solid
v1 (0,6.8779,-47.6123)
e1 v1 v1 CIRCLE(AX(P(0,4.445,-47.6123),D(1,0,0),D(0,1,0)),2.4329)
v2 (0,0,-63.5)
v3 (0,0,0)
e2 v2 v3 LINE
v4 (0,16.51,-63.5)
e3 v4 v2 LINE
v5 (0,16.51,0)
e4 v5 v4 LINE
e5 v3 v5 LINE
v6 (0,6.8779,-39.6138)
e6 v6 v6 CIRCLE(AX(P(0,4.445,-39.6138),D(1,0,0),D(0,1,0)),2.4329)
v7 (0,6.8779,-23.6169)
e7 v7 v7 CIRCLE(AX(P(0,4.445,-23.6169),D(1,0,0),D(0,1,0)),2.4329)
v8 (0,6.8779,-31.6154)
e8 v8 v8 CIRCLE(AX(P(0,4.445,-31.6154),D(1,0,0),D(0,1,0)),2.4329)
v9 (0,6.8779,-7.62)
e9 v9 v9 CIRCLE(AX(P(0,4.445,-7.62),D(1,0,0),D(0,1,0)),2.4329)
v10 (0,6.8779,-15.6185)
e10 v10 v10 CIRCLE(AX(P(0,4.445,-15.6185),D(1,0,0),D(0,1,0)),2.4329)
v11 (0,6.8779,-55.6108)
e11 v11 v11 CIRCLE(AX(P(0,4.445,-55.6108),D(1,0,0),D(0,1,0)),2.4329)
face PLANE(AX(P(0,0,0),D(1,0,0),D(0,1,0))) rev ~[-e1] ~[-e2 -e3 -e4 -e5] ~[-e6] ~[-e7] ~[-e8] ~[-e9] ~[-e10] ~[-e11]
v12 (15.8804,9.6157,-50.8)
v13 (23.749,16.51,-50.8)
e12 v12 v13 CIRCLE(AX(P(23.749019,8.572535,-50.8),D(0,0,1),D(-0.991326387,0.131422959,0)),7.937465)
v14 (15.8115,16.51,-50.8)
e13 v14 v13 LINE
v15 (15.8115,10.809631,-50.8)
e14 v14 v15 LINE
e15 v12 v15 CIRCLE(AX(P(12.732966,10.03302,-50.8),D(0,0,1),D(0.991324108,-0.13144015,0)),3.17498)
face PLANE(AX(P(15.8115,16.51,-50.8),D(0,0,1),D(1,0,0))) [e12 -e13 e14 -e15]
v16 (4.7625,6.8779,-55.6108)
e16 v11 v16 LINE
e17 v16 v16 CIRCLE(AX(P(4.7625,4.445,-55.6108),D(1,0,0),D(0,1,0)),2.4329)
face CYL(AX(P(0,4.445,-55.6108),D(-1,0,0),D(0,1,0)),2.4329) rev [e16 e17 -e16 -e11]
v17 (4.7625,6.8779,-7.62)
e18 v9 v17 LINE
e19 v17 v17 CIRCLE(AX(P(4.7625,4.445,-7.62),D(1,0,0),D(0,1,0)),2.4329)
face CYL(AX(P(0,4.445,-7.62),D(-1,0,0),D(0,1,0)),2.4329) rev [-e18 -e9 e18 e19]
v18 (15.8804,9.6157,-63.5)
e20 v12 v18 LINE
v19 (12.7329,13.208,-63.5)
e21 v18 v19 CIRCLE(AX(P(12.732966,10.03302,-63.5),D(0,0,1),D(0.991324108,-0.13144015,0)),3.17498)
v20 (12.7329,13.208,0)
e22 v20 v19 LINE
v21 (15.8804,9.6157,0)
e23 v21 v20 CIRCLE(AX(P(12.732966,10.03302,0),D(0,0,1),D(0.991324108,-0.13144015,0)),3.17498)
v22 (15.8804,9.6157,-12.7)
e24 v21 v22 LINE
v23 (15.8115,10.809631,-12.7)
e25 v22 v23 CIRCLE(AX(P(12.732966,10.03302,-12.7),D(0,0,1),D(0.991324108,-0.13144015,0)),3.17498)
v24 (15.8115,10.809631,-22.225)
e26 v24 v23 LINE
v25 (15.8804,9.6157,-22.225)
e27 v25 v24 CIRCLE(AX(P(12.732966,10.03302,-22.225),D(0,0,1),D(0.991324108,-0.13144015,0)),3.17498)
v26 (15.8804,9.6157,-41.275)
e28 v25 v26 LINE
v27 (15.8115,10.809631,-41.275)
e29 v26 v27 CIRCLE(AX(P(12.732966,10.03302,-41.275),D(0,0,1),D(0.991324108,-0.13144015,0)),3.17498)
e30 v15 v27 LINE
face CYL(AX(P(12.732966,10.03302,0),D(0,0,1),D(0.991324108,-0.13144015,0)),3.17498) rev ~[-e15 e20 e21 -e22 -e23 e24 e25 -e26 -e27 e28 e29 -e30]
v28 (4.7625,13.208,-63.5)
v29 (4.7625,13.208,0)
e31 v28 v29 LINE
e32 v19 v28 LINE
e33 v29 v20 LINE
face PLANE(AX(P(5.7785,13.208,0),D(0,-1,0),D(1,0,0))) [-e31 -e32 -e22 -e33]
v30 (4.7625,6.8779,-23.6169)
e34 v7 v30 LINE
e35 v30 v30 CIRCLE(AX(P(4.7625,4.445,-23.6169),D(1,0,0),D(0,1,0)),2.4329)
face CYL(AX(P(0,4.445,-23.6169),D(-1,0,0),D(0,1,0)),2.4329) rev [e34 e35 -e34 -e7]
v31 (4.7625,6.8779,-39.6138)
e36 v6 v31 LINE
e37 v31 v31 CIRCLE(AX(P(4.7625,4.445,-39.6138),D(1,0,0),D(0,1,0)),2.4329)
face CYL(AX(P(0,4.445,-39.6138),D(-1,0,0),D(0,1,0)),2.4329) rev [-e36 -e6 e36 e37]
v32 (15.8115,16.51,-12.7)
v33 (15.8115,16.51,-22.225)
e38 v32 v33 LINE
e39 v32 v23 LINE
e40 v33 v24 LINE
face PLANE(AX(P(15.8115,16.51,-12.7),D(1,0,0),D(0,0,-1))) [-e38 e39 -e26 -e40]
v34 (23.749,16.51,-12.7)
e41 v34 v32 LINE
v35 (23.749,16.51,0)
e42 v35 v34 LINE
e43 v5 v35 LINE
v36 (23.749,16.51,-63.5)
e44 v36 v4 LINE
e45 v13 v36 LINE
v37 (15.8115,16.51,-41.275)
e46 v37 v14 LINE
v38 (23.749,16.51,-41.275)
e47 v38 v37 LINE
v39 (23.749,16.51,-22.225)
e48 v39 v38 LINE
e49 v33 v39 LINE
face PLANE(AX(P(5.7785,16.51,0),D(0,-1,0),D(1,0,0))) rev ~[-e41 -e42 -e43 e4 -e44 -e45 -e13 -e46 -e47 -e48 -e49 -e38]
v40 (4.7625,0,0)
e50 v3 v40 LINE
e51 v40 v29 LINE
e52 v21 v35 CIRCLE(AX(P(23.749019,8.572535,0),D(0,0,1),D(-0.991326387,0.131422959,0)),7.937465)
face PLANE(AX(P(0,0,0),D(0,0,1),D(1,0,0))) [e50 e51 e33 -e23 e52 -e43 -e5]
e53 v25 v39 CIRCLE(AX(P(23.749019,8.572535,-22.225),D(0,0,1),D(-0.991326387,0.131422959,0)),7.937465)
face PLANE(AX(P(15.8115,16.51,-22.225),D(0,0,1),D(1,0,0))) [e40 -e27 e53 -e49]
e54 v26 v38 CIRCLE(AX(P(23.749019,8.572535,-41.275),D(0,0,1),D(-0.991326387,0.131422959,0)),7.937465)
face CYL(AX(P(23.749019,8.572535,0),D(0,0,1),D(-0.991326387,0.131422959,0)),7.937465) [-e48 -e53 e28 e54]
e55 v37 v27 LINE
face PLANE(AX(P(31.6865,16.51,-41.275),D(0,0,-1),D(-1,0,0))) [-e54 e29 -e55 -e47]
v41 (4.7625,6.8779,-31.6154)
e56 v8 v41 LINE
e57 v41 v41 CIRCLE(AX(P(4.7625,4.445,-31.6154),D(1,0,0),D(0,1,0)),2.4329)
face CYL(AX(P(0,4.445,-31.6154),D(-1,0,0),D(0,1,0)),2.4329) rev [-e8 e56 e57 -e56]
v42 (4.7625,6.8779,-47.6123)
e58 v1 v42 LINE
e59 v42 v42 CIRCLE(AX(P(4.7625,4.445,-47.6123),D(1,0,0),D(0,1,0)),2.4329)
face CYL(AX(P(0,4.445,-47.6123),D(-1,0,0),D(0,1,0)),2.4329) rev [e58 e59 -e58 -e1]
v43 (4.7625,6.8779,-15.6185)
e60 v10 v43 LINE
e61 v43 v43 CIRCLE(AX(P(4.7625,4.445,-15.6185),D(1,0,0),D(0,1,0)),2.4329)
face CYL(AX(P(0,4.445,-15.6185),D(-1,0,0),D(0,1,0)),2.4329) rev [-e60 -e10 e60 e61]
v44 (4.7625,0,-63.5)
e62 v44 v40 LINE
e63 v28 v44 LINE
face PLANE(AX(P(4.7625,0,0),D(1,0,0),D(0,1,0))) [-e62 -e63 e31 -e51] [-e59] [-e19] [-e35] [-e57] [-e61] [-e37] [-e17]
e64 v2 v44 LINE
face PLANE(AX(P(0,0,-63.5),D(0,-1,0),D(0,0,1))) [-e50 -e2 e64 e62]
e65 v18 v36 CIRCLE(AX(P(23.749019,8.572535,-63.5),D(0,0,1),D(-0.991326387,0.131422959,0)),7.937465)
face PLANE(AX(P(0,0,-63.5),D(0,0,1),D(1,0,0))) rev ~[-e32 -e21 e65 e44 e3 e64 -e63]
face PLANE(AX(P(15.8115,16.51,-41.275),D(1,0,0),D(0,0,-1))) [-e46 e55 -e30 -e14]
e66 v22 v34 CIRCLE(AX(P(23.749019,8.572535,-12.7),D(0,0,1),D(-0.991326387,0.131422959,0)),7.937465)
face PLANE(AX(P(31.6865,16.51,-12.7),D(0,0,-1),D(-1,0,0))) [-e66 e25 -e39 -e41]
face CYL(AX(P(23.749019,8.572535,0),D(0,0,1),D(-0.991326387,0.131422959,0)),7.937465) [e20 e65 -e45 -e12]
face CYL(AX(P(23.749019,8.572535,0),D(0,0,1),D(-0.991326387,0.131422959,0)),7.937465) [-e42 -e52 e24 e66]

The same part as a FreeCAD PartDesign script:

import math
import FreeCAD as App
import Part
import Sketcher

V = App.Vector
Q = App.Units.Quantity

doc = App.newDocument("Part")
body = doc.addObject("PartDesign::Body", "Body")

# Sketch on YZ plane
sketch1 = body.newObject("Sketcher::SketchObject", "Sketch")
sketch1.AttachmentSupport = (doc.getObject("YZ_Plane"), [""])
sketch1.MapMode = "FlatFace"
sketch1.addGeometry(Part.LineSegment(V(16.51, 0, 0), V(0, 0, 0)), False)
sketch1.addGeometry(Part.LineSegment(V(0, 0, 0), V(0, -63.5, 0)), False)
sketch1.addGeometry(Part.LineSegment(V(0, -63.5, 0), V(16.51, -63.5, 0)), False)
sketch1.addGeometry(Part.LineSegment(V(16.51, -63.5, 0), V(16.51, 0, 0)), False)
sketch1.addGeometry(Part.Circle(V(4.445, -55.6108, 0), V(0, 0, 1), 2.4329), False)
sketch1.addGeometry(Part.Circle(V(4.445, -47.6123, 0), V(0, 0, 1), 2.4329), False)
sketch1.addGeometry(Part.Circle(V(4.445, -39.6138, 0), V(0, 0, 1), 2.4329), False)
sketch1.addGeometry(Part.Circle(V(4.445, -31.6154, 0), V(0, 0, 1), 2.4329), False)
sketch1.addGeometry(Part.Circle(V(4.445, -23.6169, 0), V(0, 0, 1), 2.4329), False)
sketch1.addGeometry(Part.Circle(V(4.445, -15.6185, 0), V(0, 0, 1), 2.4329), False)
sketch1.addGeometry(Part.Circle(V(4.445, -7.62, 0), V(0, 0, 1), 2.4329), False)
sketch1.addConstraint(Sketcher.Constraint("Coincident", 0, 2, 1, 1))
sketch1.addConstraint(Sketcher.Constraint("Coincident", 1, 2, 2, 1))
sketch1.addConstraint(Sketcher.Constraint("Coincident", 2, 2, 3, 1))
sketch1.addConstraint(Sketcher.Constraint("Coincident", 3, 2, 0, 1))
sketch1.addConstraint(Sketcher.Constraint("Horizontal", 0))
sketch1.addConstraint(Sketcher.Constraint("Vertical", 1))
sketch1.addConstraint(Sketcher.Constraint("Horizontal", 2))
sketch1.addConstraint(Sketcher.Constraint("Vertical", 3))
sketch1.addConstraint(Sketcher.Constraint("Coincident", 0, 2, -1, 1))
sketch1.addConstraint(Sketcher.Constraint("Equal", 4, 5))
sketch1.addConstraint(Sketcher.Constraint("Equal", 5, 6))
sketch1.addConstraint(Sketcher.Constraint("Equal", 6, 7))
sketch1.addConstraint(Sketcher.Constraint("Equal", 7, 8))
sketch1.addConstraint(Sketcher.Constraint("Equal", 8, 9))
sketch1.addConstraint(Sketcher.Constraint("Equal", 9, 10))
sketch1.addConstraint(Sketcher.Constraint("Vertical", 4, 3, 5, 3))
sketch1.addConstraint(Sketcher.Constraint("Vertical", 5, 3, 6, 3))
sketch1.addConstraint(Sketcher.Constraint("Vertical", 6, 3, 7, 3))
sketch1.addConstraint(Sketcher.Constraint("Vertical", 7, 3, 8, 3))
sketch1.addConstraint(Sketcher.Constraint("Vertical", 8, 3, 9, 3))
sketch1.addConstraint(Sketcher.Constraint("Vertical", 9, 3, 10, 3))
sketch1.addConstraint(Sketcher.Constraint("DistanceY", 1, 2, 1, 1, Q("2.5 in")))
sketch1.addConstraint(Sketcher.Constraint("DistanceX", 0, 2, 0, 1, Q("0.65 in")))
sketch1.addConstraint(Sketcher.Constraint("DistanceY", 10, 3, -1, 1, Q("0.3 in")))
sketch1.addConstraint(Sketcher.Constraint("DistanceY", 4, 3, 5, 3, Q("0.3149 in")))
sketch1.addConstraint(Sketcher.Constraint("DistanceY", 5, 3, 6, 3, Q("0.3149 in")))
sketch1.addConstraint(Sketcher.Constraint("DistanceY", 6, 3, 7, 3, Q("0.3149 in")))
sketch1.addConstraint(Sketcher.Constraint("DistanceY", 7, 3, 8, 3, Q("0.3149 in")))
sketch1.addConstraint(Sketcher.Constraint("DistanceY", 8, 3, 9, 3, Q("0.3149 in")))
sketch1.addConstraint(Sketcher.Constraint("DistanceY", 9, 3, 10, 3, Q("0.3149 in")))
sketch1.addConstraint(Sketcher.Constraint("Diameter", 4, 4.8658))
sketch1.addConstraint(Sketcher.Constraint("DistanceX", -1, 1, 4, 3, Q("0.175 in")))
pad1 = body.newObject("PartDesign::Pad", "Pad")
pad1.Profile = sketch1
pad1.Length = Q("0.1875 in")

# Sketch on YZ plane
sketch2 = body.newObject("Sketcher::SketchObject", "Sketch001")
sketch2.AttachmentSupport = (doc.getObject("YZ_Plane"), [""])
sketch2.MapMode = "FlatFace"
sketch2.AttachmentOffset = App.Placement(V(0, 0, 0.1875 * 25.4), App.Rotation())
sketch2.addGeometry(Part.LineSegment(V(13.208, -63.5, 0), V(16.51, -63.5, 0)), False)
sketch2.addGeometry(Part.LineSegment(V(16.51, -63.5, 0), V(16.51, 0, 0)), False)
sketch2.addGeometry(Part.LineSegment(V(16.51, 0, 0), V(13.208, 0, 0)), False)
sketch2.addGeometry(Part.LineSegment(V(13.208, 0, 0), V(13.208, -63.5, 0)), False)
sketch2.addConstraint(Sketcher.Constraint("Coincident", 0, 2, 1, 1))
sketch2.addConstraint(Sketcher.Constraint("Coincident", 1, 2, 2, 1))
sketch2.addConstraint(Sketcher.Constraint("Coincident", 2, 2, 3, 1))
sketch2.addConstraint(Sketcher.Constraint("Coincident", 3, 2, 0, 1))
sketch2.addConstraint(Sketcher.Constraint("Horizontal", 0))
sketch2.addConstraint(Sketcher.Constraint("Vertical", 1))
sketch2.addConstraint(Sketcher.Constraint("Horizontal", 2))
sketch2.addConstraint(Sketcher.Constraint("Vertical", 3))
sketch2.addConstraint(Sketcher.Constraint("PointOnObject", 1, 2, -1))
sketch2.addConstraint(Sketcher.Constraint("DistanceX", 0, 1, 0, 2, Q("0.13 in")))
sketch2.addConstraint(Sketcher.Constraint("DistanceY", 1, 1, 1, 2, Q("2.5 in")))
sketch2.addConstraint(Sketcher.Constraint("DistanceX", -1, 1, 0, 2, Q("0.65 in")))
pad2 = body.newObject("PartDesign::Pad", "Pad001")
pad2.Profile = sketch2
pad2.Length = Q("0.04 in")

# Sketch on XY plane
sketch3 = body.newObject("Sketcher::SketchObject", "Sketch002")
sketch3.AttachmentSupport = (doc.getObject("XY_Plane"), [""])
sketch3.MapMode = "FlatFace"
sketch3.addGeometry(Part.LineSegment(V(23.749, 16.51, 0), V(5.7785, 16.51, 0)), False)
sketch3.addGeometry(Part.LineSegment(V(5.7785, 16.51, 0), V(5.7785, 13.208, 0)), False)
sketch3.addGeometry(Part.LineSegment(V(5.7785, 13.208, 0), V(12.7329, 13.208, 0)), False)
sketch3.addGeometry(Part.ArcOfCircle(Part.Circle(V(12.7329, 10.033, 0), V(0, 0, 1), 3.175043), math.radians(-7.55231), math.radians(90)), False)
sketch3.addGeometry(Part.ArcOfCircle(Part.Circle(V(23.749, 8.5725, 0), V(0, 0, 1), 7.937451), math.radians(172.447906), math.radians(450)), False)
sketch3.addConstraint(Sketcher.Constraint("Coincident", 0, 2, 1, 1))
sketch3.addConstraint(Sketcher.Constraint("Coincident", 1, 2, 2, 1))
sketch3.addConstraint(Sketcher.Constraint("Tangent", 2, 2, 3, 2))
sketch3.addConstraint(Sketcher.Constraint("Tangent", 3, 1, 4, 1))
sketch3.addConstraint(Sketcher.Constraint("Tangent", 4, 2, 0, 1))
sketch3.addConstraint(Sketcher.Constraint("Horizontal", 0))
sketch3.addConstraint(Sketcher.Constraint("Vertical", 1))
sketch3.addConstraint(Sketcher.Constraint("Horizontal", 2))
sketch3.addConstraint(Sketcher.Constraint("Radius", 3, Q("0.125 in")))
sketch3.addConstraint(Sketcher.Constraint("Radius", 4, Q("0.3125 in")))
sketch3.addConstraint(Sketcher.Constraint("DistanceX", -1, 1, 4, 3, Q("0.935 in")))
sketch3.addConstraint(Sketcher.Constraint("DistanceY", 1, 2, 1, 1, Q("0.13 in")))
sketch3.addConstraint(Sketcher.Constraint("DistanceY", -1, 1, 0, 2, Q("0.65 in")))
sketch3.addConstraint(Sketcher.Constraint("DistanceX", 0, 2, 0, 1, Q("0.7075 in")))
pad3 = body.newObject("PartDesign::Pad", "Pad002")
pad3.Profile = sketch3
pad3.Length = Q("2.5 in")
pad3.Reversed = True

# Sketch on XZ plane
sketch4 = body.newObject("Sketcher::SketchObject", "Sketch003")
sketch4.AttachmentSupport = (doc.getObject("XZ_Plane"), [""])
sketch4.MapMode = "FlatFace"
sketch4.AttachmentOffset = App.Placement(V(0, 0, -0.65 * 25.4), App.Rotation())
sketch4.addGeometry(Part.LineSegment(V(15.8115, -12.7, 0), V(31.6865, -12.7, 0)), False)
sketch4.addGeometry(Part.LineSegment(V(31.6865, -12.7, 0), V(31.6865, -22.225, 0)), False)
sketch4.addGeometry(Part.LineSegment(V(31.6865, -22.225, 0), V(15.8115, -22.225, 0)), False)
sketch4.addGeometry(Part.LineSegment(V(15.8115, -22.225, 0), V(15.8115, -12.7, 0)), False)
sketch4.addGeometry(Part.LineSegment(V(15.8115, -41.275, 0), V(31.6865, -41.275, 0)), False)
sketch4.addGeometry(Part.LineSegment(V(31.6865, -41.275, 0), V(31.6865, -50.8, 0)), False)
sketch4.addGeometry(Part.LineSegment(V(31.6865, -50.8, 0), V(15.8115, -50.8, 0)), False)
sketch4.addGeometry(Part.LineSegment(V(15.8115, -50.8, 0), V(15.8115, -41.275, 0)), False)
sketch4.addConstraint(Sketcher.Constraint("Coincident", 0, 2, 1, 1))
sketch4.addConstraint(Sketcher.Constraint("Coincident", 1, 2, 2, 1))
sketch4.addConstraint(Sketcher.Constraint("Coincident", 2, 2, 3, 1))
sketch4.addConstraint(Sketcher.Constraint("Coincident", 3, 2, 0, 1))
sketch4.addConstraint(Sketcher.Constraint("Coincident", 4, 2, 5, 1))
sketch4.addConstraint(Sketcher.Constraint("Coincident", 5, 2, 6, 1))
sketch4.addConstraint(Sketcher.Constraint("Coincident", 6, 2, 7, 1))
sketch4.addConstraint(Sketcher.Constraint("Coincident", 7, 2, 4, 1))
sketch4.addConstraint(Sketcher.Constraint("Horizontal", 0))
sketch4.addConstraint(Sketcher.Constraint("Vertical", 1))
sketch4.addConstraint(Sketcher.Constraint("Horizontal", 2))
sketch4.addConstraint(Sketcher.Constraint("Vertical", 3))
sketch4.addConstraint(Sketcher.Constraint("Horizontal", 4))
sketch4.addConstraint(Sketcher.Constraint("Vertical", 5))
sketch4.addConstraint(Sketcher.Constraint("Horizontal", 6))
sketch4.addConstraint(Sketcher.Constraint("Vertical", 7))
sketch4.addConstraint(Sketcher.Constraint("Vertical", 1, 2, 4, 2))
sketch4.addConstraint(Sketcher.Constraint("Vertical", 3, 2, 6, 2))
sketch4.addConstraint(Sketcher.Constraint("Equal", 3, 5))
sketch4.addConstraint(Sketcher.Constraint("DistanceY", 0, 2, -1, 1, Q("0.5 in")))
sketch4.addConstraint(Sketcher.Constraint("DistanceX", 0, 1, 0, 2, Q("0.625 in")))
sketch4.addConstraint(Sketcher.Constraint("DistanceY", 1, 2, 1, 1, Q("0.375 in")))
sketch4.addConstraint(Sketcher.Constraint("DistanceY", 5, 2, -1, 1, Q("2 in")))
sketch4.addConstraint(Sketcher.Constraint("DistanceX", -1, 1, 0, 2, Q("1.2475 in")))
pocket1 = body.newObject("PartDesign::Pocket", "Pocket")
pocket1.Profile = sketch4
pocket1.Type = "ThroughAll"
pocket1.Reversed = True

doc.recompute()
